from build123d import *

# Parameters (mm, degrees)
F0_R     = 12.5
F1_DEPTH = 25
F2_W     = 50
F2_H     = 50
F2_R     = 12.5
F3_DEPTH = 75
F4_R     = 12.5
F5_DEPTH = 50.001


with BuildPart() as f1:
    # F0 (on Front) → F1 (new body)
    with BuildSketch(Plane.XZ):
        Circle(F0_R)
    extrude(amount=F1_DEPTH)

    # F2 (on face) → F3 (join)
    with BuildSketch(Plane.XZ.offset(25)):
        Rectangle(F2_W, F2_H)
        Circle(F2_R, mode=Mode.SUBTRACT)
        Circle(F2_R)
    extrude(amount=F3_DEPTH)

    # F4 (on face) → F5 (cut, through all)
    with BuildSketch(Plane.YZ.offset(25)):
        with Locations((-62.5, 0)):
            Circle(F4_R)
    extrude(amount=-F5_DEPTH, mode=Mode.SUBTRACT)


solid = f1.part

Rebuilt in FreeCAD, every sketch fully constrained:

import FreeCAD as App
import Part
import Sketcher
from FreeCAD import Vector


def add_polygon(sketch, points):
    """Adds a closed chain of lines whose ends are joined by coincident constraints."""
    first, n = sketch.GeometryCount, len(points)
    for a, b in zip(points, points[1:] + points[:1]):
        sketch.addGeometry(Part.LineSegment(App.Vector(*a, 0), App.Vector(*b, 0)), False)
    for i in range(n):
        sketch.addConstraint(Sketcher.Constraint("Coincident", first + i, 2, first + (i + 1) % n, 1))

doc = App.newDocument("Part")
body = doc.addObject("PartDesign::Body", "Body")

# Sketch on XZ plane
sketch1 = doc.addObject("Sketcher::SketchObject", "Sketch")
body.addObject(sketch1)
sketch1.AttachmentSupport = (doc.XZ_Plane, [""])
sketch1.MapMode = "FlatFace"
sketch1.addGeometry(Part.Circle(Vector(0, 0, 0), Vector(0, 0, 1), 12), False)
sketch1.addConstraint(Sketcher.Constraint("Coincident", 0, 3, -1, 1))
sketch1.addConstraint(Sketcher.Constraint("Diameter", 0, 25.0))
pad1 = doc.addObject("PartDesign::Pad", "Pad")
body.addObject(pad1)
pad1.Profile = sketch1
pad1.Length = 25

# Sketch on XZ plane
sketch2 = doc.addObject("Sketcher::SketchObject", "Sketch001")
body.addObject(sketch2)
sketch2.AttachmentSupport = (doc.XZ_Plane, [""])
sketch2.MapMode = "FlatFace"
sketch2.AttachmentOffset = App.Placement(Vector(0, 0, 25), App.Rotation())
add_polygon(sketch2, [(-25, 25), (-25, -25), (25, -25), (25, 25)])  # lines 0-3
sketch2.addConstraint(Sketcher.Constraint("Vertical", 0))
sketch2.addConstraint(Sketcher.Constraint("Horizontal", 1))
sketch2.addConstraint(Sketcher.Constraint("Vertical", 2))
sketch2.addConstraint(Sketcher.Constraint("Horizontal", 3))
sketch2.addConstraint(Sketcher.Constraint("Symmetric", 0, 2, 2, 2, -1, 1))
sketch2.addConstraint(Sketcher.Constraint("Equal", 3, 0))
sketch2.addConstraint(Sketcher.Constraint("DistanceX", 1, 1, 1, 2, 50.0))
pad2 = doc.addObject("PartDesign::Pad", "Pad001")
body.addObject(pad2)
pad2.Profile = sketch2
pad2.Length = 75

# Sketch on YZ plane
sketch3 = doc.addObject("Sketcher::SketchObject", "Sketch002")
body.addObject(sketch3)
sketch3.AttachmentSupport = (doc.YZ_Plane, [""])
sketch3.MapMode = "FlatFace"
sketch3.AttachmentOffset = App.Placement(Vector(0, 0, 25), App.Rotation())
sketch3.addGeometry(Part.Circle(Vector(-62, 0, 0), Vector(0, 0, 1), 12), False)
sketch3.addConstraint(Sketcher.Constraint("PointOnObject", 0, 3, -1))
sketch3.addConstraint(Sketcher.Constraint("Diameter", 0, 25.0))
sketch3.addConstraint(Sketcher.Constraint("DistanceX", 0, 3, -1, 1, 62.5))
pocket1 = doc.addObject("PartDesign::Pocket", "Pocket")
body.addObject(pocket1)
pocket1.Profile = sketch3
pocket1.Type = "ThroughAll"

doc.recompute()
